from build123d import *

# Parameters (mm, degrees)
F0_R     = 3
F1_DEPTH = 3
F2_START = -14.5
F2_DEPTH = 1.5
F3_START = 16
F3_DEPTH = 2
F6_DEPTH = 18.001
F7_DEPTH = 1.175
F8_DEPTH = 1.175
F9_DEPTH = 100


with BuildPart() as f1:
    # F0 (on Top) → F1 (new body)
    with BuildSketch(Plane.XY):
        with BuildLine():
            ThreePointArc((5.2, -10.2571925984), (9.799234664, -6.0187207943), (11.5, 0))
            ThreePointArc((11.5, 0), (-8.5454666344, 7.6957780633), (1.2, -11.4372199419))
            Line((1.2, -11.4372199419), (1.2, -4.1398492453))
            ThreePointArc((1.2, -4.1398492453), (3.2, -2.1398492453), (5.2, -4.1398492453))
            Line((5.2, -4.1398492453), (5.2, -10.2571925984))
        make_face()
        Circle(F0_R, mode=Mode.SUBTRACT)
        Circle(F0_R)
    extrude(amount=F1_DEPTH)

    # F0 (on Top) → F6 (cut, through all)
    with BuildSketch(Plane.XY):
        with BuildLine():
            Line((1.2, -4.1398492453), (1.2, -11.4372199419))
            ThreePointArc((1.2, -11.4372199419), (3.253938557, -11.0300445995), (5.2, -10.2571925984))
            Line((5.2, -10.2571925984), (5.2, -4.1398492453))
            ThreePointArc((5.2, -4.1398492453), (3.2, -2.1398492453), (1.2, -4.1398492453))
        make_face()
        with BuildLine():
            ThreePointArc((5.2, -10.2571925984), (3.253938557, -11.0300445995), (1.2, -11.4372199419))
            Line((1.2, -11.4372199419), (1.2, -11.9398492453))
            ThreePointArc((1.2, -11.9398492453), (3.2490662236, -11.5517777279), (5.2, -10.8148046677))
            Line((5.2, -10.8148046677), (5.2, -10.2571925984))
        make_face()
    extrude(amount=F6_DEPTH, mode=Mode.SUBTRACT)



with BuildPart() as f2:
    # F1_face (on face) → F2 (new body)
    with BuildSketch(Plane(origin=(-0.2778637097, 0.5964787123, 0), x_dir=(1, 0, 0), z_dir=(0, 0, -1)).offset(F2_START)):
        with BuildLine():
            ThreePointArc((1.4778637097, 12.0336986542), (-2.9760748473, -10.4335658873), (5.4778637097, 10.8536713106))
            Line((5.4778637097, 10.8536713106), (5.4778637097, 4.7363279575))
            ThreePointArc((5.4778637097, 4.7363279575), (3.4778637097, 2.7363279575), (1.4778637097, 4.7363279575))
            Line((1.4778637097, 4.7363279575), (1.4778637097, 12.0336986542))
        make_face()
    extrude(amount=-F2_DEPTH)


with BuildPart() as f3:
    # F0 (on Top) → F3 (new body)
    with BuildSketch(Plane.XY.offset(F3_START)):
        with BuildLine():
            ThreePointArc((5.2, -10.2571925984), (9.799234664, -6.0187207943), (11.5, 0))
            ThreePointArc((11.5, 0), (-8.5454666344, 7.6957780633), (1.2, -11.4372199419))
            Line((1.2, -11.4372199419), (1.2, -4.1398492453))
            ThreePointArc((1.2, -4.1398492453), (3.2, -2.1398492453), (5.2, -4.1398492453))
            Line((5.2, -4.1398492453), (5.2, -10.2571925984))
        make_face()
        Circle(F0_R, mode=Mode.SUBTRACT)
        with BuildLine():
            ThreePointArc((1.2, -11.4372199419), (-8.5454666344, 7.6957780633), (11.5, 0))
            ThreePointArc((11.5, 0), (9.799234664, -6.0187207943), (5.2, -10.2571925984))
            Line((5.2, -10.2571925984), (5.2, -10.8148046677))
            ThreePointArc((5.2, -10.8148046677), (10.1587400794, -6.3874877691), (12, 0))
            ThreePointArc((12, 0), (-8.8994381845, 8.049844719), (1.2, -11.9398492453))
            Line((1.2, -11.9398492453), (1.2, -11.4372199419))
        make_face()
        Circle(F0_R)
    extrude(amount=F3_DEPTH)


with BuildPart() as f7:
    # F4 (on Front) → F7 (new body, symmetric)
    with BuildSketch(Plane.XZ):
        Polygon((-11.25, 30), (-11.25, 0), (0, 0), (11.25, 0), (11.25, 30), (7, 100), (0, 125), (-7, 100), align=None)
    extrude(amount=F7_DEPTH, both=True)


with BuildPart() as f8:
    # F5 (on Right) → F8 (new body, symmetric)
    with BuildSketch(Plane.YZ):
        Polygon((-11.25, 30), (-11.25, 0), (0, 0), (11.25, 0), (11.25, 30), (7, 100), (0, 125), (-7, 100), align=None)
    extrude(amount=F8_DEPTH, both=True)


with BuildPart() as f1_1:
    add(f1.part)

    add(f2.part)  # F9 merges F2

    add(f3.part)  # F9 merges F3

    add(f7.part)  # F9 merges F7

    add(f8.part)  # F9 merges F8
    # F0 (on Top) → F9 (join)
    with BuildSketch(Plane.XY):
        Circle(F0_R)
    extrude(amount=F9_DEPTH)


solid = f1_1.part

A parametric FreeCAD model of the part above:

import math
import FreeCAD as App
import Part
import Sketcher

V = App.Vector
Q = App.Units.Quantity


def add_polygon(sketch, points):
    """Adds a closed chain of lines whose ends are joined by coincident constraints."""
    first, n = sketch.GeometryCount, len(points)
    for a, b in zip(points, points[1:] + points[:1]):
        sketch.addGeometry(Part.LineSegment(App.Vector(*a, 0), App.Vector(*b, 0)), False)
    for i in range(n):
        sketch.addConstraint(Sketcher.Constraint("Coincident", first + i, 2, first + (i + 1) % n, 1))

doc = App.newDocument("Part")
body = doc.addObject("PartDesign::Body", "Body")

# Sketch on XY plane
sketch1 = body.newObject("Sketcher::SketchObject", "Sketch")
sketch1.AttachmentSupport = (doc.getObject("XY_Plane"), [""])
sketch1.MapMode = "FlatFace"
sketch1.addGeometry([
    Part.ArcOfCircle(Part.Circle(V(0, 0, 0), V(0, 0, 1), 11.5), math.radians(-63), math.radians(0)),  # 0
    Part.ArcOfCircle(Part.Circle(V(0, 0, 0), V(0, 0, 1), 11.5), math.radians(0), math.radians(276)),  # 1
    Part.LineSegment(V(1.2, -11.4, 0), V(1.2, -4.1, 0)),  # 2
    Part.ArcOfCircle(Part.Circle(V(3.2, -4.1, 0), V(0, 0, 1), 2), math.radians(0), math.radians(180)),  # 3
    Part.LineSegment(V(5.2, -4.1, 0), V(5.2, -10.3, 0)),  # 4
], False)
sketch1.addConstraint([
    Sketcher.Constraint("Tangent", 0, 2, 1, 1),
    Sketcher.Constraint("Coincident", 1, 2, 2, 1),
    Sketcher.Constraint("Tangent", 2, 2, 3, 2),
    Sketcher.Constraint("Tangent", 3, 1, 4, 1),
    Sketcher.Constraint("Coincident", 4, 2, 0, 1),
    Sketcher.Constraint("Vertical", 2),
    Sketcher.Constraint("Vertical", 4),
    Sketcher.Constraint("Coincident", 0, 3, -1, 1),
    Sketcher.Constraint("Equal", 0, 1),
    Sketcher.Constraint("PointOnObject", 0, 2, -1),
    Sketcher.Constraint("Radius", 3, Q("2 mm")),
    Sketcher.Constraint("Radius", 0, Q("11.5 mm")),
    Sketcher.Constraint("DistanceX", -1, 1, 3, 3, Q("3.2 mm")),
    Sketcher.Constraint("DistanceY", 2, 1, 2, 2, Q("7.297371 mm")),
])
pad1 = body.newObject("PartDesign::Pad", "Pad")
pad1.Profile = sketch1
pad1.Length = 3

# Sketch on XY plane
sketch2 = body.newObject("Sketcher::SketchObject", "Sketch001")
sketch2.AttachmentSupport = (doc.getObject("XY_Plane"), [""])
sketch2.MapMode = "FlatFace"
sketch2.addGeometry([
    Part.LineSegment(V(1.2, -4.1, 0), V(1.2, -11.9, 0)),
    Part.ArcOfCircle(Part.Circle(V(0, 0, 0), V(0, 0, 1), 12), math.radians(-84.26), math.radians(-64.32)),
    Part.LineSegment(V(5.2, -10.8, 0), V(5.2, -4.1, 0)),
    Part.ArcOfCircle(Part.Circle(V(3.2, -4.1, 0), V(0, 0, 1), 2), math.radians(0), math.radians(180)),
], False)
sketch2.addConstraint([
    Sketcher.Constraint("Coincident", 0, 2, 1, 1),
    Sketcher.Constraint("Coincident", 1, 2, 2, 1),
    Sketcher.Constraint("Tangent", 2, 2, 3, 1),
    Sketcher.Constraint("Tangent", 3, 2, 0, 1),
    Sketcher.Constraint("Vertical", 0),
    Sketcher.Constraint("Vertical", 2),
    Sketcher.Constraint("Coincident", 1, 3, -1, 1),
    Sketcher.Constraint("Radius", 1, Q("12 mm")),
    Sketcher.Constraint("Radius", 3, Q("2 mm")),
    Sketcher.Constraint("DistanceY", 0, 2, 0, 1, Q("7.8 mm")),
    Sketcher.Constraint("DistanceX", -1, 1, 3, 3, Q("3.2 mm")),
])
pocket1 = body.newObject("PartDesign::Pocket", "Pocket")
pocket1.Profile = sketch2
pocket1.Type = "ThroughAll"
pocket1.Reversed = True
body2 = doc.addObject("PartDesign::Body", "Body001")

# Sketch on XY plane
sketch3 = body2.newObject("Sketcher::SketchObject", "Sketch002")
sketch3.AttachmentSupport = (doc.getObject("XY_Plane001"), [""])
sketch3.MapMode = "FlatFace"
sketch3.AttachmentOffset = App.Placement(V(0, 0, 14.5), App.Rotation())
sketch3.addGeometry([
    Part.ArcOfCircle(Part.Circle(V(0, 0, 0), V(0, 0, 1), 11.5), math.radians(-63), math.radians(276)),
    Part.LineSegment(V(5.2, -10.3, 0), V(5.2, -4.1, 0)),
    Part.ArcOfCircle(Part.Circle(V(3.2, -4.1, 0), V(0, 0, 1), 2), math.radians(0), math.radians(180)),
    Part.LineSegment(V(1.2, -4.1, 0), V(1.2, -11.4, 0)),
], False)
sketch3.addConstraint([
    Sketcher.Constraint("Coincident", 0, 1, 1, 1),
    Sketcher.Constraint("Tangent", 1, 2, 2, 1),
    Sketcher.Constraint("Tangent", 2, 2, 3, 1),
    Sketcher.Constraint("Coincident", 3, 2, 0, 2),
    Sketcher.Constraint("Vertical", 1),
    Sketcher.Constraint("Vertical", 3),
    Sketcher.Constraint("Coincident", 0, 3, -1, 1),
    Sketcher.Constraint("Radius", 2, Q("2 mm")),
    Sketcher.Constraint("Radius", 0, Q("11.5 mm")),
    Sketcher.Constraint("DistanceX", -1, 1, 2, 3, Q("3.2 mm")),
    Sketcher.Constraint("DistanceY", 3, 2, 3, 1, Q("7.297371 mm")),
])
pad2 = body2.newObject("PartDesign::Pad", "Pad001")
pad2.Profile = sketch3
pad2.Length = 1.5
body3 = doc.addObject("PartDesign::Body", "Body002")

# Sketch on XY plane
sketch4 = body3.newObject("Sketcher::SketchObject", "Sketch003")
sketch4.AttachmentSupport = (doc.getObject("XY_Plane002"), [""])
sketch4.MapMode = "FlatFace"
sketch4.AttachmentOffset = App.Placement(V(0, 0, 16), App.Rotation())
sketch4.addGeometry([
    Part.LineSegment(V(5.2, -4.1, 0), V(5.2, -10.8, 0)),  # 0
    Part.ArcOfCircle(Part.Circle(V(0, 0, 0), V(0, 0, 1), 12), math.radians(-64), math.radians(0)),  # 1
    Part.ArcOfCircle(Part.Circle(V(0, 0, 0), V(0, 0, 1), 12), math.radians(0), math.radians(276)),  # 2
    Part.LineSegment(V(1.2, -11.9, 0), V(1.2, -4.1, 0)),  # 3
    Part.ArcOfCircle(Part.Circle(V(3.2, -4.1, 0), V(0, 0, 1), 2), math.radians(0), math.radians(180)),  # 4
], False)
sketch4.addConstraint([
    Sketcher.Constraint("Coincident", 0, 2, 1, 1),
    Sketcher.Constraint("Tangent", 1, 2, 2, 1),
    Sketcher.Constraint("Coincident", 2, 2, 3, 1),
    Sketcher.Constraint("Tangent", 3, 2, 4, 2),
    Sketcher.Constraint("Tangent", 4, 1, 0, 1),
    Sketcher.Constraint("Vertical", 0),
    Sketcher.Constraint("Vertical", 3),
    Sketcher.Constraint("Coincident", 1, 3, -1, 1),
    Sketcher.Constraint("Equal", 1, 2),
    Sketcher.Constraint("PointOnObject", 1, 2, -1),
    Sketcher.Constraint("Radius", 1, Q("12 mm")),
    Sketcher.Constraint("Radius", 4, Q("2 mm")),
    Sketcher.Constraint("DistanceY", 3, 1, 3, 2, Q("7.8 mm")),
    Sketcher.Constraint("DistanceX", -1, 1, 4, 3, Q("3.2 mm")),
])
pad3 = body3.newObject("PartDesign::Pad", "Pad002")
pad3.Profile = sketch4
pad3.Length = 2
body4 = doc.addObject("PartDesign::Body", "Body003")

# Sketch on XZ plane
sketch5 = body4.newObject("Sketcher::SketchObject", "Sketch004")
sketch5.AttachmentSupport = (doc.getObject("XZ_Plane003"), [""])
sketch5.MapMode = "FlatFace"
add_polygon(sketch5, [(-11, 30), (-11, 0), (11, 0), (11, 30), (7, 100), (0, 125), (-7, 100)])  # lines 0-6
sketch5.addConstraint([
    Sketcher.Constraint("Vertical", 0),
    Sketcher.Constraint("Horizontal", 1),
    Sketcher.Constraint("Vertical", 2),
    Sketcher.Constraint("Symmetric", 0, 2, 1, 2, -1, 1),
    Sketcher.Constraint("Symmetric", 3, 2, 5, 2, -2),
    Sketcher.Constraint("PointOnObject", 4, 2, -2),
    Sketcher.Constraint("Horizontal", 2, 2, 6, 2),
    Sketcher.Constraint("DistanceY", 0, 2, 0, 1, Q("30 mm")),
    Sketcher.Constraint("DistanceX", 1, 1, 1, 2, Q("22.5 mm")),
    Sketcher.Constraint("DistanceX", -1, 1, 3, 2, Q("7 mm")),
    Sketcher.Constraint("DistanceY", -1, 1, 3, 2, Q("100 mm")),
    Sketcher.Constraint("DistanceY", -1, 1, 4, 2, Q("125 mm")),
])
pad4 = body4.newObject("PartDesign::Pad", "Pad003")
pad4.Profile = sketch5
pad4.Length = 2.35
pad4.Midplane = True
body5 = doc.addObject("PartDesign::Body", "Body004")

# Sketch on YZ plane
sketch6 = body5.newObject("Sketcher::SketchObject", "Sketch005")
sketch6.AttachmentSupport = (doc.getObject("YZ_Plane004"), [""])
sketch6.MapMode = "FlatFace"
add_polygon(sketch6, [(-11, 30), (-11, 0), (11, 0), (11, 30), (7, 100), (0, 125), (-7, 100)])  # lines 0-6
sketch6.addConstraint([
    Sketcher.Constraint("Vertical", 0),
    Sketcher.Constraint("Horizontal", 1),
    Sketcher.Constraint("Vertical", 2),
    Sketcher.Constraint("Symmetric", 0, 2, 1, 2, -1, 1),
    Sketcher.Constraint("Symmetric", 3, 2, 5, 2, -2),
    Sketcher.Constraint("PointOnObject", 4, 2, -2),
    Sketcher.Constraint("Horizontal", 2, 2, 6, 2),
    Sketcher.Constraint("DistanceY", 0, 2, 0, 1, Q("30 mm")),
    Sketcher.Constraint("DistanceX", 1, 1, 1, 2, Q("22.5 mm")),
    Sketcher.Constraint("DistanceX", -1, 1, 3, 2, Q("7 mm")),
    Sketcher.Constraint("DistanceY", -1, 1, 3, 2, Q("100 mm")),
    Sketcher.Constraint("DistanceY", -1, 1, 4, 2, Q("125 mm")),
])
pad5 = body5.newObject("PartDesign::Pad", "Pad004")
pad5.Profile = sketch6
pad5.Length = 2.35
pad5.Midplane = True
body.AllowCompound = True
doc.recompute()

boolean = body.newObject("PartDesign::Boolean", "Boolean")
boolean.Type = "Fuse"
boolean.addObjects([body2])
doc.recompute()

boolean2 = body.newObject("PartDesign::Boolean", "Boolean001")
boolean2.Type = "Fuse"
boolean2.addObjects([body3])
doc.recompute()

boolean3 = body.newObject("PartDesign::Boolean", "Boolean002")
boolean3.Type = "Fuse"
boolean3.addObjects([body4])
doc.recompute()

boolean4 = body.newObject("PartDesign::Boolean", "Boolean003")
boolean4.Type = "Fuse"
boolean4.addObjects([body5])

# Sketch on XY plane
sketch7 = body.newObject("Sketcher::SketchObject", "Sketch006")
sketch7.AttachmentSupport = (doc.getObject("XY_Plane"), [""])
sketch7.MapMode = "FlatFace"
sketch7.addGeometry(Part.Circle(V(0, 0, 0), V(0, 0, 1), 3), False)
sketch7.addConstraint([
    Sketcher.Constraint("Coincident", 0, 3, -1, 1),
    Sketcher.Constraint("Diameter", 0, Q("6 mm")),
])
pad6 = body.newObject("PartDesign::Pad", "Pad005")
pad6.Profile = sketch7
pad6.Length = 100

doc.recompute()
